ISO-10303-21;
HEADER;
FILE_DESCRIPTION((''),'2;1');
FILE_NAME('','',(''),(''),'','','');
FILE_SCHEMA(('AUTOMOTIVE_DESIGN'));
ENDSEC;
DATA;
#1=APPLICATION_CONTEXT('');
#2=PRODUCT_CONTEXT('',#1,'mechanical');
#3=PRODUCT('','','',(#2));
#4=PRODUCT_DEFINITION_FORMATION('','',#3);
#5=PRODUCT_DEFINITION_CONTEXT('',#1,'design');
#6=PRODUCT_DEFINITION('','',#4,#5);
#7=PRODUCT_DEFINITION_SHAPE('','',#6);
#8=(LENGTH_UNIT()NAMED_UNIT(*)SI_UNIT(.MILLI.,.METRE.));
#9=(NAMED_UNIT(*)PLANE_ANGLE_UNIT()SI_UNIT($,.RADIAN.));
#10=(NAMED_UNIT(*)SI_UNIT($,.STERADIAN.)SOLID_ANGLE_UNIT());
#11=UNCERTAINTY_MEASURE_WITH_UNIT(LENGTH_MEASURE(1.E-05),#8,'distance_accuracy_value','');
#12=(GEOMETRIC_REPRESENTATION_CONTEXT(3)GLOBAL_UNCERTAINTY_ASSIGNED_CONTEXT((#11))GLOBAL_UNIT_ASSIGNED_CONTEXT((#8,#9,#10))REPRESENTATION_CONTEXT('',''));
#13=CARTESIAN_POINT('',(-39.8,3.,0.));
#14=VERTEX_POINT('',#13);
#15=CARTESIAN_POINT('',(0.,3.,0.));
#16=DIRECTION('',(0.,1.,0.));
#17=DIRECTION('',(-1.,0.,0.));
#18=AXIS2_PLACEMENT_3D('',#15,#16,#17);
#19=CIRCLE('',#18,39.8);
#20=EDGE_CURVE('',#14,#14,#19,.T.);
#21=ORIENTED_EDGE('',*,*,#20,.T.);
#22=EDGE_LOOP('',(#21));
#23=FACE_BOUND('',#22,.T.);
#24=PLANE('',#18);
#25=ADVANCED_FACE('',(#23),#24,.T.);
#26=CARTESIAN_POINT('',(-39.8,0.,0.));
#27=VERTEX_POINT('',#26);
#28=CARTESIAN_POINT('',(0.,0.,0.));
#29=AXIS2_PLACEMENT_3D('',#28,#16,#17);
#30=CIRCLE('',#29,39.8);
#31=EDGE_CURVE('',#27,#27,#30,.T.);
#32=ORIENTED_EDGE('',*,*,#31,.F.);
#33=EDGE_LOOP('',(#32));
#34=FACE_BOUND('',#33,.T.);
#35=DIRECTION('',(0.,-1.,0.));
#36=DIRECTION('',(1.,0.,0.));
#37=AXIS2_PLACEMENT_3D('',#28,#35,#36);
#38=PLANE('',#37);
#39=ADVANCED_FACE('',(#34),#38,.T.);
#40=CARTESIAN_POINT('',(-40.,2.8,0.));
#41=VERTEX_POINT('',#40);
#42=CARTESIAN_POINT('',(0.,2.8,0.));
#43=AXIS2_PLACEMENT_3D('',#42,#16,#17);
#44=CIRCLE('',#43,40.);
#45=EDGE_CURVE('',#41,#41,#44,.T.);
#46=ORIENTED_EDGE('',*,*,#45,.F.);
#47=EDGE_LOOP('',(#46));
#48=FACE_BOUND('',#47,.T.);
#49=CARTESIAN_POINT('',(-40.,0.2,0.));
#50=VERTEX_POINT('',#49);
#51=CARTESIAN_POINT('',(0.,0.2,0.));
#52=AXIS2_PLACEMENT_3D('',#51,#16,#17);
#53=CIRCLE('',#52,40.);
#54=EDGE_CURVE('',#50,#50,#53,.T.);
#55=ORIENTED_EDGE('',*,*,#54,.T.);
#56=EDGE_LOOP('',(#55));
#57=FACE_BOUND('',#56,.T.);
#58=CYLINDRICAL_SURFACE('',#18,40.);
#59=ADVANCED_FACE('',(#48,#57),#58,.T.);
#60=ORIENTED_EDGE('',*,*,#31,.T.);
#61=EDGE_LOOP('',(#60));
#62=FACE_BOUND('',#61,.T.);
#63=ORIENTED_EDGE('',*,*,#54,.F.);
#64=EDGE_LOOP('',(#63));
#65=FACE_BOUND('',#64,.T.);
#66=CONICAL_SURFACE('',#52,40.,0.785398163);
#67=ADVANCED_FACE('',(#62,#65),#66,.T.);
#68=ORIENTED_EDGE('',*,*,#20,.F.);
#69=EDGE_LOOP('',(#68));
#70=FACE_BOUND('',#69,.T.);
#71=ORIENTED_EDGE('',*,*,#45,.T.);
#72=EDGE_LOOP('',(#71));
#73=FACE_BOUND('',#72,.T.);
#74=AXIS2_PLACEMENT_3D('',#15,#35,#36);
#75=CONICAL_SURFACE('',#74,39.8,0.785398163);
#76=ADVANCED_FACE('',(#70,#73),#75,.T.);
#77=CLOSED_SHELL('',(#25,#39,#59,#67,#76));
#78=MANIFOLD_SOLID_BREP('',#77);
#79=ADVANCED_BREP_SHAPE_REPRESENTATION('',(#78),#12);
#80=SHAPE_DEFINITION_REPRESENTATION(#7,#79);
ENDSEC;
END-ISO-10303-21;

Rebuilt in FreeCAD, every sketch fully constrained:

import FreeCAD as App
import Part
import Sketcher
from FreeCAD import Vector
Q = App.Units.Quantity


def add_polygon(sketch, points):
    """Adds a closed chain of lines whose ends are joined by coincident constraints."""
    first, n = sketch.GeometryCount, len(points)
    for a, b in zip(points, points[1:] + points[:1]):
        sketch.addGeometry(Part.LineSegment(App.Vector(*a, 0), App.Vector(*b, 0)), False)
    for i in range(n):
        sketch.addConstraint(Sketcher.Constraint("Coincident", first + i, 2, first + (i + 1) % n, 1))

doc = App.newDocument("Part")
body = doc.addObject("PartDesign::Body", "Body")

sketch1 = doc.addObject("Sketcher::SketchObject", "Sketch")
body.addObject(sketch1)
sketch1.AttachmentSupport = (doc.XY_Plane, [""])
sketch1.MapMode = "FlatFace"
add_polygon(sketch1, [(0, 0), (0, 3), (-39.8, 3), (-40, 2.8), (-40, 0.2), (-39.8, 0)])
sketch1.addConstraint([
    Sketcher.Constraint("Vertical", 0),
    Sketcher.Constraint("Horizontal", 1),
    Sketcher.Constraint("Vertical", 3),
    Sketcher.Constraint("Horizontal", 5),
    Sketcher.Constraint("Coincident", 5, 2, -1, 1),
    Sketcher.Constraint("Perpendicular", 2, 4),
    Sketcher.Constraint("Vertical", 1, 2, 4, 2),
    Sketcher.Constraint("Equal", 2, 4),
    Sketcher.Constraint("DistanceY", 0, 1, 0, 2, Q("3 mm")),
    Sketcher.Constraint("DistanceX", 1, 2, 1, 1, Q("39.8 mm")),
    Sketcher.Constraint("DistanceY", 3, 2, 3, 1, Q("2.6 mm")),
])
revolution = doc.addObject("PartDesign::Revolution", "Revolution")
body.addObject(revolution)
revolution.Profile = sketch1
revolution.ReferenceAxis = (sketch1, ["V_Axis"])
revolution.Angle = 360

doc.recompute()
